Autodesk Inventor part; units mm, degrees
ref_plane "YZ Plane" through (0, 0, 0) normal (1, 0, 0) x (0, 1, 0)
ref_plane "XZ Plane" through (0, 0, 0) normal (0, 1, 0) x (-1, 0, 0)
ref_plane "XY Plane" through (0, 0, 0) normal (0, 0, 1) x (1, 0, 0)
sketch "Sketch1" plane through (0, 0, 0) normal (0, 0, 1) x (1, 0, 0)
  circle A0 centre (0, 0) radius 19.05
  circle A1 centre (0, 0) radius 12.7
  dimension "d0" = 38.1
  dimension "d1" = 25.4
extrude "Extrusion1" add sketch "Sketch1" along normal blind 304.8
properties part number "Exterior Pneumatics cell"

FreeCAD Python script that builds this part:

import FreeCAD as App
import Part
import Sketcher
Q = App.Units.Quantity

doc = App.newDocument("Part")
body = doc.addObject("PartDesign::Body", "Body")

sketch1 = body.newObject("Sketcher::SketchObject", "Sketch")
sketch1.AttachmentSupport = (doc.getObject("XY_Plane"), [""])
sketch1.MapMode = "FlatFace"
sketch1.addGeometry([
    Part.Circle(App.Vector(0, 0, 0), App.Vector(0, 0, 1), 19.05),
    Part.Circle(App.Vector(0, 0, 0), App.Vector(0, 0, 1), 12.7),
], False)
sketch1.addConstraint([
    Sketcher.Constraint("Coincident", 0, 3, -1, 1),
    Sketcher.Constraint("Coincident", 1, 3, -1, 1),
    Sketcher.Constraint("Diameter", 1, Q("1 in")),
    Sketcher.Constraint("Diameter", 0, Q("1.5 in")),
])
pad1 = body.newObject("PartDesign::Pad", "Pad")
pad1.Profile = sketch1
pad1.Length = Q("12 in")

doc.recompute()
